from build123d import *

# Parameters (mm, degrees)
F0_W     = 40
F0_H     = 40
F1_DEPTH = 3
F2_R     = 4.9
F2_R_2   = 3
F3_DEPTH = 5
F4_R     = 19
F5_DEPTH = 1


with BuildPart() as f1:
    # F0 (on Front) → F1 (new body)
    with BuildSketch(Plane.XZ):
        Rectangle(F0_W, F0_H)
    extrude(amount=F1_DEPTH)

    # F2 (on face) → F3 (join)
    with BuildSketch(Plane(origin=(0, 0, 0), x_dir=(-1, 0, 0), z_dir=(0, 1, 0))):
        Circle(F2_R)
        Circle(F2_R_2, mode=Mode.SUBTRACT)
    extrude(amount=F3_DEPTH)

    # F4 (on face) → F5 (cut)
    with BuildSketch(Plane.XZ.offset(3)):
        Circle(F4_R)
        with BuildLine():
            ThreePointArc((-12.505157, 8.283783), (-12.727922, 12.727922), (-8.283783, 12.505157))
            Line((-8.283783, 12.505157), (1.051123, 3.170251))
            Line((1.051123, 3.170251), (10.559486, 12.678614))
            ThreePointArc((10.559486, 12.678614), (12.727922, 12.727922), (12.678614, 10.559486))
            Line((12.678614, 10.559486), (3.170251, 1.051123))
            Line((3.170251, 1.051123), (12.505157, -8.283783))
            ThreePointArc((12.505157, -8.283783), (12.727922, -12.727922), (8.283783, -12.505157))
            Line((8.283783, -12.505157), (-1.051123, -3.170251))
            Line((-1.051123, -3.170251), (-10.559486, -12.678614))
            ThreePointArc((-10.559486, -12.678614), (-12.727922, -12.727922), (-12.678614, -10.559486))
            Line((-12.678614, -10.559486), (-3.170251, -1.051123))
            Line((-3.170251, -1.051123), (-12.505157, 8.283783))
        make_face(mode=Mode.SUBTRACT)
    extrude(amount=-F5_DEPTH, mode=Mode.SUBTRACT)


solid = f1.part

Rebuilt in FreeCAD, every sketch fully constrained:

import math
import FreeCAD as App
import Part
import Sketcher
Q = App.Units.Quantity


def add_polygon(sketch, points):
    """Adds a closed chain of lines whose ends are joined by coincident constraints."""
    first, n = sketch.GeometryCount, len(points)
    for a, b in zip(points, points[1:] + points[:1]):
        sketch.addGeometry(Part.LineSegment(App.Vector(*a, 0), App.Vector(*b, 0)), False)
    for i in range(n):
        sketch.addConstraint(Sketcher.Constraint("Coincident", first + i, 2, first + (i + 1) % n, 1))

doc = App.newDocument("Part")
body = doc.addObject("PartDesign::Body", "Body")

# Sketch on XZ plane
sketch1 = doc.addObject("Sketcher::SketchObject", "Sketch")
body.addObject(sketch1)
sketch1.AttachmentSupport = (doc.XZ_Plane, [""])
sketch1.MapMode = "FlatFace"
add_polygon(sketch1, [(-20, 20), (-20, -20), (20, -20), (20, 20)])  # lines 0-3
sketch1.addConstraint([
    Sketcher.Constraint("Vertical", 0),
    Sketcher.Constraint("Horizontal", 1),
    Sketcher.Constraint("Vertical", 2),
    Sketcher.Constraint("Horizontal", 3),
    Sketcher.Constraint("Symmetric", 0, 2, 2, 2, -1, 1),
    Sketcher.Constraint("Equal", 3, 0),
    Sketcher.Constraint("DistanceX", 1, 1, 1, 2, Q("40 mm")),
])
pad1 = doc.addObject("PartDesign::Pad", "Pad")
body.addObject(pad1)
pad1.Profile = sketch1
pad1.Length = 3

# Sketch on XZ plane
sketch2 = doc.addObject("Sketcher::SketchObject", "Sketch001")
body.addObject(sketch2)
sketch2.AttachmentSupport = (doc.XZ_Plane, [""])
sketch2.MapMode = "FlatFace"
sketch2.addGeometry([
    Part.Circle(App.Vector(0, 0, 0), App.Vector(0, 0, 1), 4.9),
    Part.Circle(App.Vector(0, 0, 0), App.Vector(0, 0, 1), 3),
], False)
sketch2.addConstraint([
    Sketcher.Constraint("Coincident", 0, 3, -1, 1),
    Sketcher.Constraint("Coincident", 1, 3, -1, 1),
    Sketcher.Constraint("Diameter", 1, Q("6 mm")),
    Sketcher.Constraint("Diameter", 0, Q("9.8 mm")),
])
pad2 = doc.addObject("PartDesign::Pad", "Pad001")
body.addObject(pad2)
pad2.Profile = sketch2
pad2.Length = 5
pad2.Reversed = True

# Sketch on XZ plane
sketch3 = doc.addObject("Sketcher::SketchObject", "Sketch002")
body.addObject(sketch3)
sketch3.AttachmentSupport = (doc.XZ_Plane, [""])
sketch3.MapMode = "FlatFace"
sketch3.AttachmentOffset = App.Placement(App.Vector(0, 0, 3), App.Rotation())
sketch3.addGeometry([
    Part.Circle(App.Vector(0, 0, 0), App.Vector(0, 0, 1), 19),  # 0
    Part.LineSegment(App.Vector(-3.2, -1.1, 0), App.Vector(-12.5, 8.3, 0)),  # 1
    Part.ArcOfCircle(Part.Circle(App.Vector(-10.6, 10.6, 0), App.Vector(0, 0, 1), 3), math.radians(39), math.radians(231)),  # 2
    Part.LineSegment(App.Vector(-8.3, 12.5, 0), App.Vector(1.1, 3.2, 0)),  # 3
    Part.LineSegment(App.Vector(1.1, 3.2, 0), App.Vector(10.6, 12.7, 0)),  # 4
    Part.ArcOfCircle(Part.Circle(App.Vector(11.7, 11.7, 0), App.Vector(0, 0, 1), 1.5), math.radians(-48), math.radians(138)),  # 5
    Part.LineSegment(App.Vector(12.7, 10.6, 0), App.Vector(3.2, 1.1, 0)),  # 6
    Part.LineSegment(App.Vector(3.2, 1.1, 0), App.Vector(12.5, -8.3, 0)),  # 7
    Part.ArcOfCircle(Part.Circle(App.Vector(10.6, -10.6, 0), App.Vector(0, 0, 1), 3), math.radians(-141), math.radians(51)),  # 8
    Part.LineSegment(App.Vector(8.3, -12.5, 0), App.Vector(-1.1, -3.2, 0)),  # 9
    Part.LineSegment(App.Vector(-1.1, -3.2, 0), App.Vector(-10.6, -12.7, 0)),  # 10
    Part.ArcOfCircle(Part.Circle(App.Vector(-11.7, -11.7, 0), App.Vector(0, 0, 1), 1.5), math.radians(132), math.radians(318)),  # 11
    Part.LineSegment(App.Vector(-12.7, -10.6, 0), App.Vector(-3.2, -1.1, 0)),  # 12
], False)
sketch3.addConstraint([
    Sketcher.Constraint("Coincident", 1, 2, 2, 2),
    Sketcher.Constraint("Coincident", 2, 1, 3, 1),
    Sketcher.Constraint("Coincident", 3, 2, 4, 1),
    Sketcher.Constraint("Coincident", 4, 2, 5, 2),
    Sketcher.Constraint("Coincident", 5, 1, 6, 1),
    Sketcher.Constraint("Coincident", 6, 2, 7, 1),
    Sketcher.Constraint("Coincident", 7, 2, 8, 2),
    Sketcher.Constraint("Coincident", 8, 1, 9, 1),
    Sketcher.Constraint("Coincident", 9, 2, 10, 1),
    Sketcher.Constraint("Coincident", 10, 2, 11, 2),
    Sketcher.Constraint("Coincident", 11, 1, 12, 1),
    Sketcher.Constraint("Coincident", 12, 2, 1, 1),
    Sketcher.Constraint("Coincident", 0, 3, -1, 1),
    Sketcher.Constraint("Equal", 2, 8),
    Sketcher.Constraint("Equal", 5, 11),
    Sketcher.Constraint("Symmetric", 2, 3, 8, 3, -1, 1),
    Sketcher.Constraint("Symmetric", 5, 3, 11, 3, -1, 1),
    Sketcher.Constraint("Symmetric", 3, 2, 9, 2, -1, 1),
    Sketcher.Constraint("Symmetric", 6, 2, 12, 2, -1, 1),
    Sketcher.Constraint("Parallel", 1, 3),
    Sketcher.Constraint("Perpendicular", 3, 4),
    Sketcher.Constraint("Parallel", 4, 6),
    Sketcher.Constraint("Perpendicular", 6, 7),
    Sketcher.Constraint("Parallel", 7, 9),
    Sketcher.Constraint("Perpendicular", 9, 10),
    Sketcher.Constraint("Parallel", 10, 12),
    Sketcher.Constraint("Equal", 1, 3),
    Sketcher.Constraint("Equal", 4, 6),
    Sketcher.Constraint("Diameter", 0, Q("38 mm")),
    Sketcher.Constraint("Radius", 2, Q("3 mm")),
    Sketcher.Constraint("Radius", 5, Q("1.5 mm")),
    Sketcher.Constraint("Angle", 1, Q("135 deg")),
    Sketcher.Constraint("DistanceX", 2, 3, -1, 1, Q("10.606602 mm")),
    Sketcher.Constraint("DistanceY", -1, 1, 2, 3, Q("10.606602 mm")),
    Sketcher.Constraint("Distance", 1, Q("13.201551 mm")),
    Sketcher.Constraint("DistanceX", -1, 1, 5, 3, Q("11.667262 mm")),
    Sketcher.Constraint("DistanceY", -1, 1, 5, 3, Q("11.667262 mm")),
    Sketcher.Constraint("DistanceY", -1, 1, 3, 2, Q("3.170251 mm")),
])
pocket1 = doc.addObject("PartDesign::Pocket", "Pocket")
body.addObject(pocket1)
pocket1.Profile = sketch3
pocket1.Length = 1

doc.recompute()
